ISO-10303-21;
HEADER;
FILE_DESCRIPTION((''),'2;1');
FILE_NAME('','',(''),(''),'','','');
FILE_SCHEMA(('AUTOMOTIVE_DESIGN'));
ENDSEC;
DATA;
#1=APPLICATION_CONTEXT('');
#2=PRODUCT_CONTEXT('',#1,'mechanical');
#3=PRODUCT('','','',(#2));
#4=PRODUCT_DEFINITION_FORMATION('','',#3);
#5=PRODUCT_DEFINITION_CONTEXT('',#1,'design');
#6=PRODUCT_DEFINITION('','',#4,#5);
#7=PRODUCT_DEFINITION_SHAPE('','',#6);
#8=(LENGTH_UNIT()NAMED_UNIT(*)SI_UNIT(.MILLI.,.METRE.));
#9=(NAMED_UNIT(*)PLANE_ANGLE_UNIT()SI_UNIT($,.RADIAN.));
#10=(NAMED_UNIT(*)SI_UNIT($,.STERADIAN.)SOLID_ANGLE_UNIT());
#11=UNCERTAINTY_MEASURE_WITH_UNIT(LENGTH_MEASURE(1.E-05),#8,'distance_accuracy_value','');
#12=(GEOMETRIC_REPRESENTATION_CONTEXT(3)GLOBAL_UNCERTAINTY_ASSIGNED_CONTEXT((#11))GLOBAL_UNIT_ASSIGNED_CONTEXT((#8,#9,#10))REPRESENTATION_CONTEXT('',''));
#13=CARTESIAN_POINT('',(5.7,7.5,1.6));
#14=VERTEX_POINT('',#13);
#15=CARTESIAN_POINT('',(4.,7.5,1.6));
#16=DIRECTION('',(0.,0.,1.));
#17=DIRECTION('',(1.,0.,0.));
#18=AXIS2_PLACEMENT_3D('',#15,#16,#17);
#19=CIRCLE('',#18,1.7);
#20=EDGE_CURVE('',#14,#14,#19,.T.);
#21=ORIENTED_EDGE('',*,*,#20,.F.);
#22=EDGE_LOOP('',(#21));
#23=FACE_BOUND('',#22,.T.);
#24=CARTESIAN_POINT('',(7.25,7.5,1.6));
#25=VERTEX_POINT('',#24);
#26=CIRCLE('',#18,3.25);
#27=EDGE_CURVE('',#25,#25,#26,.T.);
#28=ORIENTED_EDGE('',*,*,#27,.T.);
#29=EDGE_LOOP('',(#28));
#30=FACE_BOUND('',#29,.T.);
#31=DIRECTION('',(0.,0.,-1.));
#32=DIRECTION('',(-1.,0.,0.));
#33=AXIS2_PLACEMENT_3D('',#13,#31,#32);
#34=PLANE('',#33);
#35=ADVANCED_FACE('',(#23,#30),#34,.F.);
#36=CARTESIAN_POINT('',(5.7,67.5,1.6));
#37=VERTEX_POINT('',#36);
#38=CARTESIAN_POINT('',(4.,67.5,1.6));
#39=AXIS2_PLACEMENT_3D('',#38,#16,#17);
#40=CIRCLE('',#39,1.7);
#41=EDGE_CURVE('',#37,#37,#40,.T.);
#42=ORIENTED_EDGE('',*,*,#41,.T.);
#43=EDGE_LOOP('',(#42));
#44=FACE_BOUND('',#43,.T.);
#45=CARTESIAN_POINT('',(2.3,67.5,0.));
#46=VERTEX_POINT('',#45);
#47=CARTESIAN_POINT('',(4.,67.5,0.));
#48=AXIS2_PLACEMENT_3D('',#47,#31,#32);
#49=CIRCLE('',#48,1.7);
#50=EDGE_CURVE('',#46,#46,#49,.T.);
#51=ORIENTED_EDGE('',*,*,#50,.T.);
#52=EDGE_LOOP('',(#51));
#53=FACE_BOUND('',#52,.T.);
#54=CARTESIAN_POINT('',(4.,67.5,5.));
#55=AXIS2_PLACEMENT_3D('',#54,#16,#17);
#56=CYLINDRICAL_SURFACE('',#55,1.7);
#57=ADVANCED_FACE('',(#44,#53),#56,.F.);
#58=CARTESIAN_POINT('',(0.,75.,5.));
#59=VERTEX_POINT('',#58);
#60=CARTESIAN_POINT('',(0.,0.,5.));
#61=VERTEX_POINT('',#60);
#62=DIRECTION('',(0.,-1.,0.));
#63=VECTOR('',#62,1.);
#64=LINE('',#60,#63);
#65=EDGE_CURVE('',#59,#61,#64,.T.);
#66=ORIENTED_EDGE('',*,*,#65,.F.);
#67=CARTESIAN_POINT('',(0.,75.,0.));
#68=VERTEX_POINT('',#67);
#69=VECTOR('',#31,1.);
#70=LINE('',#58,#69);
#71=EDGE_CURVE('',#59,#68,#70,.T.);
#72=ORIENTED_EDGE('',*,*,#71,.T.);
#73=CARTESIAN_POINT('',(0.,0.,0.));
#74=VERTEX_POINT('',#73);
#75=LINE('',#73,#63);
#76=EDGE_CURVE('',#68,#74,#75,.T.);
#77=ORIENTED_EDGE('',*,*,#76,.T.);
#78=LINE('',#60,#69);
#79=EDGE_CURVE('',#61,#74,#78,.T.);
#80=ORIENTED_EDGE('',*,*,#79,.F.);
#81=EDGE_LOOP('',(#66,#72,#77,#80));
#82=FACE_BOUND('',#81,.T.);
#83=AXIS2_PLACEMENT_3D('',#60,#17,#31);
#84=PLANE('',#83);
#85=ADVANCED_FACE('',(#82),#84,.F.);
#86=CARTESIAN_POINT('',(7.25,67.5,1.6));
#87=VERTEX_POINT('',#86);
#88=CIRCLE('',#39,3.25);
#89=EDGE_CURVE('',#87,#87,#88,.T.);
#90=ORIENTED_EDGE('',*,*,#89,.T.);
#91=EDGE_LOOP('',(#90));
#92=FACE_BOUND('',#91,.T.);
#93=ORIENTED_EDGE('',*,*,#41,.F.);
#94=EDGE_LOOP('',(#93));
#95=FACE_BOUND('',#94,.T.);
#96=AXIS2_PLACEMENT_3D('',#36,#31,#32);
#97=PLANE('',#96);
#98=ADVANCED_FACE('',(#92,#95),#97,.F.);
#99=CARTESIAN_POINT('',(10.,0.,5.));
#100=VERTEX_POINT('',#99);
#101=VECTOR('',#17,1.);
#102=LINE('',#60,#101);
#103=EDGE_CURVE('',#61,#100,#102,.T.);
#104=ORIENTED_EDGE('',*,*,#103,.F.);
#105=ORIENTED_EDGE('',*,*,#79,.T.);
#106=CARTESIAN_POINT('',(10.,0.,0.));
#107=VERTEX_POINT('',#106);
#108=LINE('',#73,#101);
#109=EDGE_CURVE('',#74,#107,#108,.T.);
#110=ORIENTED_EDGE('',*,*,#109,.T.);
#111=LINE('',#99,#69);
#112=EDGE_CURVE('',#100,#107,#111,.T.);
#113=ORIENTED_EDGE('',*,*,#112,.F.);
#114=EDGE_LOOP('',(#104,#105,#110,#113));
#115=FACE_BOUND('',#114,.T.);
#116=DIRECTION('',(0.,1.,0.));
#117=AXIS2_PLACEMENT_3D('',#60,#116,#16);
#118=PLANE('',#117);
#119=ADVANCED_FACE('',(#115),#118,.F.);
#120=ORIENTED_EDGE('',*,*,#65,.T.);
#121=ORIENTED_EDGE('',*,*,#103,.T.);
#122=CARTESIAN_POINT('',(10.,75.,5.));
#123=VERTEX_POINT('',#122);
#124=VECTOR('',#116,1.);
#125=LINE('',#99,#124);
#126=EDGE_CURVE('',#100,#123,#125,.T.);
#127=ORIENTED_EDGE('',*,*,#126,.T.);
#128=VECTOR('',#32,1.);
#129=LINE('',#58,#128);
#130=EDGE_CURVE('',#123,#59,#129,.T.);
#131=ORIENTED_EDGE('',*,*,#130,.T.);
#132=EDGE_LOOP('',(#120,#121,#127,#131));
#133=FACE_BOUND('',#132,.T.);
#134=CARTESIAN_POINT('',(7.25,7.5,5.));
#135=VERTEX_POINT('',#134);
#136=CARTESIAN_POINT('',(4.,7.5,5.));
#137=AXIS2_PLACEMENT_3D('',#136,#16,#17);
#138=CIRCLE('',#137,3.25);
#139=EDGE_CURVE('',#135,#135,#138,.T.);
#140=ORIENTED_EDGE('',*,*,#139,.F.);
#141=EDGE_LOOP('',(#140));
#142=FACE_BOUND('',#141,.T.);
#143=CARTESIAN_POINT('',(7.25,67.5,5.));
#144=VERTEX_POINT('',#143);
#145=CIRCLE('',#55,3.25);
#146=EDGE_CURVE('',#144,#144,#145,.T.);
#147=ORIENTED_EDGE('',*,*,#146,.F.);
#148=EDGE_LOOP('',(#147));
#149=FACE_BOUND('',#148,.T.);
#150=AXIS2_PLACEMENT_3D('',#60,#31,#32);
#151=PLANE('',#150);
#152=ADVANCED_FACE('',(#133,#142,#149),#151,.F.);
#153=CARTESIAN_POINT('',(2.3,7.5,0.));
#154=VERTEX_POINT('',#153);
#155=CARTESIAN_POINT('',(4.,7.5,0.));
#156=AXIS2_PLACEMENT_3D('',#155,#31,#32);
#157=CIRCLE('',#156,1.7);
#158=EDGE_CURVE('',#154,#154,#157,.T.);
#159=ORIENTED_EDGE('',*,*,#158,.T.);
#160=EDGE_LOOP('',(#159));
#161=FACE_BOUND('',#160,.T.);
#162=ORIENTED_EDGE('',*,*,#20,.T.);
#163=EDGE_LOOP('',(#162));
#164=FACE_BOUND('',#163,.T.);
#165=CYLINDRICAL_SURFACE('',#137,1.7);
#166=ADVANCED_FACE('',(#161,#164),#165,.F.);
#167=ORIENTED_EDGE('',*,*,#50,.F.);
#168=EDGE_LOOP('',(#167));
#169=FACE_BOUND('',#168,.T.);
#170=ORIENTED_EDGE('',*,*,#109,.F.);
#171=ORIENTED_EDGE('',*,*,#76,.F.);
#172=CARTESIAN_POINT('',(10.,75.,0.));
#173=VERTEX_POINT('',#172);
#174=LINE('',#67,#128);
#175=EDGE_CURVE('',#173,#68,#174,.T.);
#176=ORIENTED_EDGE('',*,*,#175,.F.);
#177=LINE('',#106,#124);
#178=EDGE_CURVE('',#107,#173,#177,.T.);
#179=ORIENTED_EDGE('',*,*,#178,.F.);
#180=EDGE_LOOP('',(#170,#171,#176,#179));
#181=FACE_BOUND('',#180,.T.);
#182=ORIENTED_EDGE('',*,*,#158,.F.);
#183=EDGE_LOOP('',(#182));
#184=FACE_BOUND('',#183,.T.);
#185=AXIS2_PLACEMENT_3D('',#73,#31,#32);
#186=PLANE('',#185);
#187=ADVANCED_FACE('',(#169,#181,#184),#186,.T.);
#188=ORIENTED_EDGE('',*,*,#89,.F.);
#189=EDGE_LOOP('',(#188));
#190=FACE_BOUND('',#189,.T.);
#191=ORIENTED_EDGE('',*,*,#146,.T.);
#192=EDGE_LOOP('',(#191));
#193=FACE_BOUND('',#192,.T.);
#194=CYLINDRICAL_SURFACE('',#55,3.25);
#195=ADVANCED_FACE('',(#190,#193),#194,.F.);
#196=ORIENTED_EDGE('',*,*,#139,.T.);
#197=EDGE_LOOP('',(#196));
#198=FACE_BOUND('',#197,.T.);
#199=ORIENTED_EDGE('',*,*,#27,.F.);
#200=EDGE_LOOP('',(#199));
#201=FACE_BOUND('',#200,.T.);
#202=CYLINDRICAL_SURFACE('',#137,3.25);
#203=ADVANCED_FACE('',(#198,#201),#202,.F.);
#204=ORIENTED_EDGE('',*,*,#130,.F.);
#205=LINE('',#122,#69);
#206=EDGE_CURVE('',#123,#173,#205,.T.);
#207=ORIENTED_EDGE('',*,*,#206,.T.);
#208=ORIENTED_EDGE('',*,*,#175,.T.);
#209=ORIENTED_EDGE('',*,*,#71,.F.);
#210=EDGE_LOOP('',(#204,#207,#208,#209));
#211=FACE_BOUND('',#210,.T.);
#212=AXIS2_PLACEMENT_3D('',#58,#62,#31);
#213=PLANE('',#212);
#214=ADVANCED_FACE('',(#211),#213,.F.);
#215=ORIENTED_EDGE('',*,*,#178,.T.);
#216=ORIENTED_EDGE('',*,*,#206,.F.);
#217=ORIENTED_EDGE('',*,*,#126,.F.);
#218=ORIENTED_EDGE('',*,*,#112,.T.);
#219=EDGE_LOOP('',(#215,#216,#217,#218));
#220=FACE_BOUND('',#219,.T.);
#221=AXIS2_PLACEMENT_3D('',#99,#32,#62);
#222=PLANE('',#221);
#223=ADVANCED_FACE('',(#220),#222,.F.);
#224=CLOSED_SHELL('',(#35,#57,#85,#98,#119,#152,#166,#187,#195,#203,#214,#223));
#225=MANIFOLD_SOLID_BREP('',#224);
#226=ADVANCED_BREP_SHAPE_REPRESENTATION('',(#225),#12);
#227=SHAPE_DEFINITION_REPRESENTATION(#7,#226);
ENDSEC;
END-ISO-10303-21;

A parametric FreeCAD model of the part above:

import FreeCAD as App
import Part
import Sketcher

doc = App.newDocument("Part")
body = doc.addObject("PartDesign::Body", "Body")

# Sketch on XY plane
sketch1 = doc.addObject("Sketcher::SketchObject", "Sketch")
body.addObject(sketch1)
sketch1.AttachmentSupport = (doc.XY_Plane, [""])
sketch1.MapMode = "FlatFace"
sketch1.addGeometry([
    Part.LineSegment(App.Vector(0, 75, 0), App.Vector(0, 0, 0)),
    Part.LineSegment(App.Vector(0, 0, 0), App.Vector(10, 0, 0)),
    Part.LineSegment(App.Vector(10, 0, 0), App.Vector(10, 75, 0)),
    Part.LineSegment(App.Vector(10, 75, 0), App.Vector(0, 75, 0)),
], False)
sketch1.addConstraint([
    Sketcher.Constraint("Coincident", 0, 2, 1, 1),
    Sketcher.Constraint("Coincident", 1, 2, 2, 1),
    Sketcher.Constraint("Coincident", 2, 2, 3, 1),
    Sketcher.Constraint("Coincident", 3, 2, 0, 1),
    Sketcher.Constraint("Vertical", 0),
    Sketcher.Constraint("Horizontal", 1),
    Sketcher.Constraint("Vertical", 2),
    Sketcher.Constraint("Horizontal", 3),
    Sketcher.Constraint("Coincident", 0, 2, -1, 1),
    Sketcher.Constraint("DistanceX", 1, 1, 1, 2, 10.0),
    Sketcher.Constraint("DistanceY", 0, 2, 0, 1, 75.0),
])
pad1 = doc.addObject("PartDesign::Pad", "Pad")
body.addObject(pad1)
pad1.Profile = sketch1
pad1.Length = 5

# Sketch on XY plane
sketch2 = doc.addObject("Sketcher::SketchObject", "Sketch001")
body.addObject(sketch2)
sketch2.AttachmentSupport = (doc.XY_Plane, [""])
sketch2.MapMode = "FlatFace"
sketch2.AttachmentOffset = App.Placement(App.Vector(0, 0, 5), App.Rotation())
sketch2.addGeometry([
    Part.Circle(App.Vector(4, 67.5, 0), App.Vector(0, 0, 1), 1.7),
    Part.Circle(App.Vector(4, 7.5, 0), App.Vector(0, 0, 1), 1.7),
], False)
sketch2.addConstraint([
    Sketcher.Constraint("Equal", 0, 1),
    Sketcher.Constraint("Vertical", 0, 3, 1, 3),
    Sketcher.Constraint("Diameter", 0, 3.4),
    Sketcher.Constraint("DistanceX", -1, 1, 0, 3, 4.0),
    Sketcher.Constraint("DistanceY", 1, 3, 0, 3, 60.0),
    Sketcher.Constraint("DistanceY", -1, 1, 0, 3, 67.5),
])
doc.recompute()
hole = doc.addObject("PartDesign::Hole", "Hole")
body.addObject(hole)
hole.Profile = sketch2
hole.ThreadType = "None"
hole.Diameter = 3.4
hole.DepthType = "Dimension"
hole.Depth = 10.1
hole.DrillPoint = "Angled"
hole.DrillPointAngle = 118
hole.HoleCutType = "Counterbore"
hole.HoleCutDiameter = 6.5
hole.HoleCutDepth = 3.4

doc.recompute()
